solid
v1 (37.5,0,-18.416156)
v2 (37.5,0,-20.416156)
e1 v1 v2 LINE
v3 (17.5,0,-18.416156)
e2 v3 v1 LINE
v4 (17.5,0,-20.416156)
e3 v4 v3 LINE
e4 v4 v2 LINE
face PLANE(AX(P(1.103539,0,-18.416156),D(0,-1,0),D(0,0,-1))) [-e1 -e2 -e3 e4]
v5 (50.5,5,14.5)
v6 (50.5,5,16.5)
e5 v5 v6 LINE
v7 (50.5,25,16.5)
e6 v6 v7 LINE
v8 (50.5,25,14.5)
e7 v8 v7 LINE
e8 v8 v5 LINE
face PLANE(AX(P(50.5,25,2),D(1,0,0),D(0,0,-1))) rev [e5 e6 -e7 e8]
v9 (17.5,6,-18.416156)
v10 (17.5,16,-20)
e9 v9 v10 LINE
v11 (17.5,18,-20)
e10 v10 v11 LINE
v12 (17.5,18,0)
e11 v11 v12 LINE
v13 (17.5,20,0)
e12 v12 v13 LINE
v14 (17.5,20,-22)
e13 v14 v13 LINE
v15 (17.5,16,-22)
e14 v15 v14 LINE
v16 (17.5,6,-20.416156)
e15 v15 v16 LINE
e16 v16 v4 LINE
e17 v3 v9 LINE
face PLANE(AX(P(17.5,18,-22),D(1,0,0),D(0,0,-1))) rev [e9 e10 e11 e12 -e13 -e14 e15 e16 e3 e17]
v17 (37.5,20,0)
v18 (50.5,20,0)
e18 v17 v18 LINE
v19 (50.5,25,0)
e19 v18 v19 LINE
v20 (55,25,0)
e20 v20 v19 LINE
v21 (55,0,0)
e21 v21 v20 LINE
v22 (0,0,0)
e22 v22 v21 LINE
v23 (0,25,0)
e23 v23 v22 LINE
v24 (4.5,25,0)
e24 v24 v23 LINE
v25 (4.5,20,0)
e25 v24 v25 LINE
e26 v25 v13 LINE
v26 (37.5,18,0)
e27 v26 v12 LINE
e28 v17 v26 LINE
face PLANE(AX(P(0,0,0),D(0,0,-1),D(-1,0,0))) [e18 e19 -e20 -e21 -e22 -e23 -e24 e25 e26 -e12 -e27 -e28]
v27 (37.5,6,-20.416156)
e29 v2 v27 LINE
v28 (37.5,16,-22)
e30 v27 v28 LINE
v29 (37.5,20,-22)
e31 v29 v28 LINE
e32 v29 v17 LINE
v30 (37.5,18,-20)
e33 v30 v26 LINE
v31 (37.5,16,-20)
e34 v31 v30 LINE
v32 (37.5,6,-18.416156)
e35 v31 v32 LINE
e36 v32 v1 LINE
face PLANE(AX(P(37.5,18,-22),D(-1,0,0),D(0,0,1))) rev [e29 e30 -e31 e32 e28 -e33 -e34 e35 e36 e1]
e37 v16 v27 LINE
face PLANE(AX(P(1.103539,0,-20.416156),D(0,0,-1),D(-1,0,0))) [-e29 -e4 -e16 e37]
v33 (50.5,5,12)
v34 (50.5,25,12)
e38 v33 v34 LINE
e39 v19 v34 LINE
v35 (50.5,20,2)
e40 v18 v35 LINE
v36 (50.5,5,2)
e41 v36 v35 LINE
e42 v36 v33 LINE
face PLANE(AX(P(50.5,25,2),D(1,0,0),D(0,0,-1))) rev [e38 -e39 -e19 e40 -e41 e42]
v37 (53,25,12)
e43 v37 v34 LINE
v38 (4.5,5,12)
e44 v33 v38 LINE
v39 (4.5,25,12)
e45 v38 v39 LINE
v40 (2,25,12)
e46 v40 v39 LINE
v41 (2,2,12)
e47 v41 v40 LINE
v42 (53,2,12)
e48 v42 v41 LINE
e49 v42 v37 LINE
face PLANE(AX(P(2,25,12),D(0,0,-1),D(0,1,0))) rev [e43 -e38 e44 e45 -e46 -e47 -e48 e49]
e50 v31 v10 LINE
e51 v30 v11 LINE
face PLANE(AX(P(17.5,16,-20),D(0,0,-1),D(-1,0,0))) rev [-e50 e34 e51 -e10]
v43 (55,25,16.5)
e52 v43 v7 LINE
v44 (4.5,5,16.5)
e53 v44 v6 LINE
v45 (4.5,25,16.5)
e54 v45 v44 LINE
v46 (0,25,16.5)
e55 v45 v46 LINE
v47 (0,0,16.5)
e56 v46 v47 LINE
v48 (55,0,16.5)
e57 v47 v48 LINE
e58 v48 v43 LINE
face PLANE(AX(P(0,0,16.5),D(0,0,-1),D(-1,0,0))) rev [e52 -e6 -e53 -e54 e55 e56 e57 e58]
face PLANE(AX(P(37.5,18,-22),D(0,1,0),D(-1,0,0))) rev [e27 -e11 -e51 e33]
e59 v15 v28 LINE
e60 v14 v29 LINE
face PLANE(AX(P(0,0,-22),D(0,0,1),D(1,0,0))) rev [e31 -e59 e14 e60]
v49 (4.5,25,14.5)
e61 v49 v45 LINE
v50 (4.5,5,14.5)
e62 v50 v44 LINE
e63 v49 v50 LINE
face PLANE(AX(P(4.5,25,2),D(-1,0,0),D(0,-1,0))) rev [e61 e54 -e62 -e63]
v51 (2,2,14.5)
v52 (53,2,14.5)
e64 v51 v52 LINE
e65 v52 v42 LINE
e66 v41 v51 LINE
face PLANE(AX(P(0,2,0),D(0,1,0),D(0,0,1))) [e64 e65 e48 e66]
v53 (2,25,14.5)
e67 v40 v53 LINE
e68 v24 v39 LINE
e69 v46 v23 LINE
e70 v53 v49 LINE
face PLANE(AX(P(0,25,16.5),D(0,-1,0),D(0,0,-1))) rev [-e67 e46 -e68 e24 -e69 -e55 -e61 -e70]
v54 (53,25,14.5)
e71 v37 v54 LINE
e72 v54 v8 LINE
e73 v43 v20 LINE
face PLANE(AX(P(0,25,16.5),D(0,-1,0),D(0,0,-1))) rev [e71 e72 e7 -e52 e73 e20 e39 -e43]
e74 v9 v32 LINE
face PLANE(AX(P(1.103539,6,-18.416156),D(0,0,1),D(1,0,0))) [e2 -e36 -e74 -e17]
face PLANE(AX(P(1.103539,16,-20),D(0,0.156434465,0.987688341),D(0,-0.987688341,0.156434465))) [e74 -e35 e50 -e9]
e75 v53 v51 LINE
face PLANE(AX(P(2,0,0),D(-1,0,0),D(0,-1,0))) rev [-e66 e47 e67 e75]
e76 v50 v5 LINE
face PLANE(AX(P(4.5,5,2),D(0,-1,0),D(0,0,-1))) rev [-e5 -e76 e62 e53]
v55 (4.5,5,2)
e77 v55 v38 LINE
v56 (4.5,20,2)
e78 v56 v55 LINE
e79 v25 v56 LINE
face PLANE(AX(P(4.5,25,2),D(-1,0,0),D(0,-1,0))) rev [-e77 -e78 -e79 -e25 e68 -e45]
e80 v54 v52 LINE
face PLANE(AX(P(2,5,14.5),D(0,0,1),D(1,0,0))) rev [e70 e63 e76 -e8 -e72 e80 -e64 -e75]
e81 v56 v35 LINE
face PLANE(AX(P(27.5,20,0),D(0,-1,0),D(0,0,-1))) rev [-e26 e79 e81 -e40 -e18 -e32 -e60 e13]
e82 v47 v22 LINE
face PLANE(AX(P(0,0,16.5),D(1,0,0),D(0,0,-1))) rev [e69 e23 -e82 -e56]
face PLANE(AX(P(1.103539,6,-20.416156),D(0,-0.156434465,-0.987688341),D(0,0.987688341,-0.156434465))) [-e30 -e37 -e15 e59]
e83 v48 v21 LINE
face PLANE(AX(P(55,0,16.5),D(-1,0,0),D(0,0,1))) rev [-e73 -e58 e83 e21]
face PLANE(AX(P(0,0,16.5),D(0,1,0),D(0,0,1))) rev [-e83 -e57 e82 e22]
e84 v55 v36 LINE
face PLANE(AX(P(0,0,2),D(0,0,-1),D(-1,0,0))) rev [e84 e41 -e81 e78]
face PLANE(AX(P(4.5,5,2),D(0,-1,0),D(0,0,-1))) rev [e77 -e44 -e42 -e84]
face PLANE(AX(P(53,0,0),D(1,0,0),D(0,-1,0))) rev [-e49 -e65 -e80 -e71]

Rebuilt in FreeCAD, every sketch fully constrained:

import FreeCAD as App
import Part
import Sketcher
Q = App.Units.Quantity

doc = App.newDocument("Part")
params = doc.addObject("Spreadsheet::Sheet", "Params")
for row, (alias, value) in enumerate([
    ("sketch1_width", "55 mm"),
    ("sketch1_height", "25 mm"),
    ("pad1_length", "16.5 mm"),
    ("sketch2_width", "46 mm"),
    ("sketch2_height", "20 mm"),
    ("pocket1_length", "14.5 mm"),
    ("sketch3_width", "20 mm"),
    ("sketch3_height", "2.5 mm"),
    ("pocket2_length", "2.5 mm"),
    ("sketch4_width", "51 mm"),
    ("sketch4_height", "2.5 mm"),
    ("pocket3_length", "3 mm"),
    ("sketch5_width", "46 mm"),
    ("sketch5_height", "5 mm"),
    ("sketch6_width", "20 mm"),
    ("sketch6_height", "2 mm"),
    ("pad2_length", "22 mm"),
    ("sketch7_width", "20 mm"),
    ("sketch7_height", "2 mm"),
    ("pad3_length", "2 mm"),
    ("sketch8_width", "6 mm"),
    ("sketch8_height", "2 mm"),
    ("pad4_length", "20 mm"),
], start=1):
    params.set(f"A{row}", alias)
    params.set(f"B{row}", "=" + value)
    params.setAlias(f"B{row}", alias)

body = doc.addObject("PartDesign::Body", "Body")

# Sketch on XY plane
sketch1 = doc.addObject("Sketcher::SketchObject", "Sketch")
body.addObject(sketch1)
sketch1.AttachmentSupport = (doc.XY_Plane, [""])
sketch1.MapMode = "FlatFace"
sketch1.addGeometry([
    Part.LineSegment(App.Vector(0, 25, 0), App.Vector(0, 0, 0)),
    Part.LineSegment(App.Vector(0, 0, 0), App.Vector(55, 0, 0)),
    Part.LineSegment(App.Vector(55, 0, 0), App.Vector(55, 25, 0)),
    Part.LineSegment(App.Vector(55, 25, 0), App.Vector(0, 25, 0)),
], False)
sketch1.addConstraint([
    Sketcher.Constraint("Coincident", 0, 2, 1, 1),
    Sketcher.Constraint("Coincident", 1, 2, 2, 1),
    Sketcher.Constraint("Coincident", 2, 2, 3, 1),
    Sketcher.Constraint("Coincident", 3, 2, 0, 1),
    Sketcher.Constraint("Vertical", 0),
    Sketcher.Constraint("Horizontal", 1),
    Sketcher.Constraint("Vertical", 2),
    Sketcher.Constraint("Horizontal", 3),
    Sketcher.Constraint("Coincident", 0, 2, -1, 1),
    Sketcher.Constraint("DistanceX", 1, 1, 1, 2, 55.0),
    Sketcher.Constraint("DistanceY", 0, 2, 0, 1, 25.0),
])
sketch1.setExpression("Constraints[9]", "Params.sketch1_width")
sketch1.setExpression("Constraints[10]", "Params.sketch1_height")
pad1 = doc.addObject("PartDesign::Pad", "Pad")
body.addObject(pad1)
pad1.Profile = sketch1
pad1.setExpression("Length", "Params.pad1_length")

# Sketch on XY plane
sketch2 = doc.addObject("Sketcher::SketchObject", "Sketch001")
body.addObject(sketch2)
sketch2.AttachmentSupport = (doc.XY_Plane, [""])
sketch2.MapMode = "FlatFace"
sketch2.AttachmentOffset = App.Placement(App.Vector(0, 0, 16.5), App.Rotation())
sketch2.addGeometry([
    Part.LineSegment(App.Vector(4, 25, 0), App.Vector(4, 5, 0)),
    Part.LineSegment(App.Vector(4, 5, 0), App.Vector(50, 5, 0)),
    Part.LineSegment(App.Vector(50, 5, 0), App.Vector(50, 25, 0)),
    Part.LineSegment(App.Vector(50, 25, 0), App.Vector(4, 25, 0)),
], False)
sketch2.addConstraint([
    Sketcher.Constraint("Coincident", 0, 2, 1, 1),
    Sketcher.Constraint("Coincident", 1, 2, 2, 1),
    Sketcher.Constraint("Coincident", 2, 2, 3, 1),
    Sketcher.Constraint("Coincident", 3, 2, 0, 1),
    Sketcher.Constraint("Vertical", 0),
    Sketcher.Constraint("Horizontal", 1),
    Sketcher.Constraint("Vertical", 2),
    Sketcher.Constraint("Horizontal", 3),
    Sketcher.Constraint("DistanceX", 1, 1, 1, 2, 46.0),
    Sketcher.Constraint("DistanceY", 0, 2, 0, 1, 20.0),
    Sketcher.Constraint("DistanceY", -1, 1, 0, 2, 5.0),
    Sketcher.Constraint("DistanceX", -1, 1, 0, 2, 4.5),
])
sketch2.setExpression("Constraints[8]", "Params.sketch2_width")
sketch2.setExpression("Constraints[9]", "Params.sketch2_height")
pocket1 = doc.addObject("PartDesign::Pocket", "Pocket")
body.addObject(pocket1)
pocket1.Profile = sketch2
pocket1.setExpression("Length", "Params.pocket1_length")

# Sketch on YZ plane
sketch3 = doc.addObject("Sketcher::SketchObject", "Sketch002")
body.addObject(sketch3)
sketch3.AttachmentSupport = (doc.YZ_Plane, [""])
sketch3.MapMode = "FlatFace"
sketch3.AttachmentOffset = App.Placement(App.Vector(0, 0, 4.5), App.Rotation())
sketch3.addGeometry([
    Part.LineSegment(App.Vector(25, 14.5, 0), App.Vector(5, 14.5, 0)),
    Part.LineSegment(App.Vector(5, 14.5, 0), App.Vector(5, 12, 0)),
    Part.LineSegment(App.Vector(5, 12, 0), App.Vector(25, 12, 0)),
    Part.LineSegment(App.Vector(25, 12, 0), App.Vector(25, 14.5, 0)),
], False)
sketch3.addConstraint([
    Sketcher.Constraint("Coincident", 0, 2, 1, 1),
    Sketcher.Constraint("Coincident", 1, 2, 2, 1),
    Sketcher.Constraint("Coincident", 2, 2, 3, 1),
    Sketcher.Constraint("Coincident", 3, 2, 0, 1),
    Sketcher.Constraint("Horizontal", 0),
    Sketcher.Constraint("Vertical", 1),
    Sketcher.Constraint("Horizontal", 2),
    Sketcher.Constraint("Vertical", 3),
    Sketcher.Constraint("DistanceX", 0, 2, 0, 1, 20.0),
    Sketcher.Constraint("DistanceY", 1, 2, 1, 1, 2.5),
    Sketcher.Constraint("DistanceX", -1, 1, 0, 2, 5.0),
    Sketcher.Constraint("DistanceY", -1, 1, 1, 2, 12.0),
])
sketch3.setExpression("Constraints[8]", "Params.sketch3_width")
sketch3.setExpression("Constraints[9]", "Params.sketch3_height")
pocket2 = doc.addObject("PartDesign::Pocket", "Pocket001")
body.addObject(pocket2)
pocket2.Profile = sketch3
pocket2.setExpression("Length", "Params.pocket2_length")
doc.recompute()

datumplane = doc.addObject("PartDesign::Plane", "DatumPlane")
body.addObject(datumplane)
datumplane.AttachmentSupport = (doc.YZ_Plane, [""])
datumplane.MapMode = "FlatFace"
datumplane.AttachmentOffset = App.Placement(App.Vector(0, 0, 27.5), App.Rotation())
mirrored = doc.addObject("PartDesign::Mirrored", "Mirrored")
body.addObject(mirrored)
mirrored.Originals = [pocket2]
mirrored.MirrorPlane = (datumplane, [""])
body.Tip = mirrored

# Sketch on XZ plane
sketch4 = doc.addObject("Sketcher::SketchObject", "Sketch003")
body.addObject(sketch4)
sketch4.AttachmentSupport = (doc.XZ_Plane, [""])
sketch4.MapMode = "FlatFace"
sketch4.AttachmentOffset = App.Placement(App.Vector(0, 0, -5), App.Rotation())
sketch4.addGeometry([
    Part.LineSegment(App.Vector(53, 12, 0), App.Vector(2, 12, 0)),
    Part.LineSegment(App.Vector(2, 12, 0), App.Vector(2, 14.5, 0)),
    Part.LineSegment(App.Vector(2, 14.5, 0), App.Vector(53, 14.5, 0)),
    Part.LineSegment(App.Vector(53, 14.5, 0), App.Vector(53, 12, 0)),
], False)
sketch4.addConstraint([
    Sketcher.Constraint("Coincident", 0, 2, 1, 1),
    Sketcher.Constraint("Coincident", 1, 2, 2, 1),
    Sketcher.Constraint("Coincident", 2, 2, 3, 1),
    Sketcher.Constraint("Coincident", 3, 2, 0, 1),
    Sketcher.Constraint("Horizontal", 0),
    Sketcher.Constraint("Vertical", 1),
    Sketcher.Constraint("Horizontal", 2),
    Sketcher.Constraint("Vertical", 3),
    Sketcher.Constraint("DistanceX", 0, 2, 0, 1, 51.0),
    Sketcher.Constraint("DistanceY", 1, 1, 1, 2, 2.5),
    Sketcher.Constraint("DistanceX", -1, 1, 0, 2, 2.0),
    Sketcher.Constraint("DistanceY", -1, 1, 0, 2, 12.0),
])
sketch4.setExpression("Constraints[8]", "Params.sketch4_width")
sketch4.setExpression("Constraints[9]", "Params.sketch4_height")
pocket3 = doc.addObject("PartDesign::Pocket", "Pocket002")
body.addObject(pocket3)
pocket3.Profile = sketch4
pocket3.setExpression("Length", "Params.pocket3_length")
pocket3.Reversed = True

# Sketch on XY plane
sketch5 = doc.addObject("Sketcher::SketchObject", "Sketch004")
body.addObject(sketch5)
sketch5.AttachmentSupport = (doc.XY_Plane, [""])
sketch5.MapMode = "FlatFace"
sketch5.AttachmentOffset = App.Placement(App.Vector(0, 0, 2), App.Rotation())
sketch5.addGeometry([
    Part.LineSegment(App.Vector(4, 20, 0), App.Vector(50, 20, 0)),
    Part.LineSegment(App.Vector(50, 20, 0), App.Vector(50, 25, 0)),
    Part.LineSegment(App.Vector(50, 25, 0), App.Vector(4, 25, 0)),
    Part.LineSegment(App.Vector(4, 25, 0), App.Vector(4, 20, 0)),
], False)
sketch5.addConstraint([
    Sketcher.Constraint("Coincident", 0, 2, 1, 1),
    Sketcher.Constraint("Coincident", 1, 2, 2, 1),
    Sketcher.Constraint("Coincident", 2, 2, 3, 1),
    Sketcher.Constraint("Coincident", 3, 2, 0, 1),
    Sketcher.Constraint("Horizontal", 0),
    Sketcher.Constraint("Vertical", 1),
    Sketcher.Constraint("Horizontal", 2),
    Sketcher.Constraint("Vertical", 3),
    Sketcher.Constraint("DistanceX", 0, 1, 0, 2, 46.0),
    Sketcher.Constraint("DistanceY", 1, 1, 1, 2, 5.0),
    Sketcher.Constraint("DistanceY", -1, 1, 0, 2, 20.0),
    Sketcher.Constraint("DistanceX", -1, 1, 0, 2, 50.5),
])
sketch5.setExpression("Constraints[8]", "Params.sketch5_width")
sketch5.setExpression("Constraints[9]", "Params.sketch5_height")
pocket4 = doc.addObject("PartDesign::Pocket", "Pocket003")
body.addObject(pocket4)
pocket4.Profile = sketch5
pocket4.Type = "ThroughAll"

# Sketch on XY plane
sketch6 = doc.addObject("Sketcher::SketchObject", "Sketch005")
body.addObject(sketch6)
sketch6.AttachmentSupport = (doc.XY_Plane, [""])
sketch6.MapMode = "FlatFace"
sketch6.addGeometry([
    Part.LineSegment(App.Vector(37.5, 20, 0), App.Vector(37.5, 18, 0)),
    Part.LineSegment(App.Vector(37.5, 18, 0), App.Vector(17.5, 18, 0)),
    Part.LineSegment(App.Vector(17.5, 18, 0), App.Vector(17.5, 20, 0)),
    Part.LineSegment(App.Vector(17.5, 20, 0), App.Vector(37.5, 20, 0)),
], False)
sketch6.addConstraint([
    Sketcher.Constraint("Coincident", 0, 2, 1, 1),
    Sketcher.Constraint("Coincident", 1, 2, 2, 1),
    Sketcher.Constraint("Coincident", 2, 2, 3, 1),
    Sketcher.Constraint("Coincident", 3, 2, 0, 1),
    Sketcher.Constraint("Vertical", 0),
    Sketcher.Constraint("Horizontal", 1),
    Sketcher.Constraint("Vertical", 2),
    Sketcher.Constraint("Horizontal", 3),
    Sketcher.Constraint("DistanceX", 1, 2, 1, 1, 20.0),
    Sketcher.Constraint("DistanceY", 0, 2, 0, 1, 2.0),
    Sketcher.Constraint("DistanceY", -1, 1, 0, 2, 18.0),
    Sketcher.Constraint("DistanceX", -1, 1, 0, 2, 37.5),
])
sketch6.setExpression("Constraints[8]", "Params.sketch6_width")
sketch6.setExpression("Constraints[9]", "Params.sketch6_height")
pad2 = doc.addObject("PartDesign::Pad", "Pad001")
body.addObject(pad2)
pad2.Profile = sketch6
pad2.setExpression("Length", "Params.pad2_length")
pad2.Reversed = True

# Sketch on XZ plane
sketch7 = doc.addObject("Sketcher::SketchObject", "Sketch006")
body.addObject(sketch7)
sketch7.AttachmentSupport = (doc.XZ_Plane, [""])
sketch7.MapMode = "FlatFace"
sketch7.AttachmentOffset = App.Placement(App.Vector(0, 0, -18), App.Rotation())
sketch7.addGeometry([
    Part.LineSegment(App.Vector(17.5, -20, 0), App.Vector(17.5, -22, 0)),
    Part.LineSegment(App.Vector(17.5, -22, 0), App.Vector(37.5, -22, 0)),
    Part.LineSegment(App.Vector(37.5, -22, 0), App.Vector(37.5, -20, 0)),
    Part.LineSegment(App.Vector(37.5, -20, 0), App.Vector(17.5, -20, 0)),
], False)
sketch7.addConstraint([
    Sketcher.Constraint("Coincident", 0, 2, 1, 1),
    Sketcher.Constraint("Coincident", 1, 2, 2, 1),
    Sketcher.Constraint("Coincident", 2, 2, 3, 1),
    Sketcher.Constraint("Coincident", 3, 2, 0, 1),
    Sketcher.Constraint("Vertical", 0),
    Sketcher.Constraint("Horizontal", 1),
    Sketcher.Constraint("Vertical", 2),
    Sketcher.Constraint("Horizontal", 3),
    Sketcher.Constraint("DistanceX", 1, 1, 1, 2, 20.0),
    Sketcher.Constraint("DistanceY", 0, 2, 0, 1, 2.0),
    Sketcher.Constraint("DistanceY", 0, 2, -1, 1, 22.0),
    Sketcher.Constraint("DistanceX", -1, 1, 0, 2, 17.5),
])
sketch7.setExpression("Constraints[8]", "Params.sketch7_width")
sketch7.setExpression("Constraints[9]", "Params.sketch7_height")
pad3 = doc.addObject("PartDesign::Pad", "Pad002")
body.addObject(pad3)
pad3.Profile = sketch7
pad3.setExpression("Length", "Params.pad3_length")

# Sketch on YZ plane
sketch8 = doc.addObject("Sketcher::SketchObject", "Sketch007")
body.addObject(sketch8)
sketch8.AttachmentSupport = (doc.YZ_Plane, [""])
sketch8.MapMode = "FlatFace"
sketch8.AttachmentOffset = App.Placement(App.Vector(0, 0, 37.5), App.Rotation())
sketch8.addGeometry([
    Part.LineSegment(App.Vector(16, -20, 0), App.Vector(6, -18.4, 0)),  # 0
    Part.LineSegment(App.Vector(6, -18.4, 0), App.Vector(0, -18.4, 0)),  # 1
    Part.LineSegment(App.Vector(0, -18.4, 0), App.Vector(0, -20.4, 0)),  # 2
    Part.LineSegment(App.Vector(0, -20.4, 0), App.Vector(6, -20.4, 0)),  # 3
    Part.LineSegment(App.Vector(6, -20.4, 0), App.Vector(16, -22, 0)),  # 4
    Part.LineSegment(App.Vector(16, -22, 0), App.Vector(16, -20, 0)),  # 5
], False)
sketch8.addConstraint([
    Sketcher.Constraint("Coincident", 0, 2, 1, 1),
    Sketcher.Constraint("Coincident", 1, 2, 2, 1),
    Sketcher.Constraint("Coincident", 2, 2, 3, 1),
    Sketcher.Constraint("Coincident", 3, 2, 4, 1),
    Sketcher.Constraint("Coincident", 4, 2, 5, 1),
    Sketcher.Constraint("Coincident", 5, 2, 0, 1),
    Sketcher.Constraint("Horizontal", 1),
    Sketcher.Constraint("Vertical", 2),
    Sketcher.Constraint("Horizontal", 3),
    Sketcher.Constraint("Vertical", 5),
    Sketcher.Constraint("PointOnObject", 1, 2, -2),
    Sketcher.Constraint("Parallel", 0, 4),
    Sketcher.Constraint("Vertical", 0, 2, 3, 2),
    Sketcher.Constraint("DistanceX", 1, 2, 1, 1, 6.0),
    Sketcher.Constraint("DistanceY", 2, 2, 2, 1, 2.0),
    Sketcher.Constraint("Angle", 0, Q("171 deg")),
    Sketcher.Constraint("DistanceX", -1, 1, 4, 2, 16.0),
    Sketcher.Constraint("DistanceY", 4, 2, -1, 1, 22.0),
])
sketch8.setExpression("Constraints[13]", "Params.sketch8_width")
sketch8.setExpression("Constraints[14]", "Params.sketch8_height")
pad4 = doc.addObject("PartDesign::Pad", "Pad003")
body.addObject(pad4)
pad4.Profile = sketch8
pad4.setExpression("Length", "Params.pad4_length")
pad4.Reversed = True

doc.recompute()
